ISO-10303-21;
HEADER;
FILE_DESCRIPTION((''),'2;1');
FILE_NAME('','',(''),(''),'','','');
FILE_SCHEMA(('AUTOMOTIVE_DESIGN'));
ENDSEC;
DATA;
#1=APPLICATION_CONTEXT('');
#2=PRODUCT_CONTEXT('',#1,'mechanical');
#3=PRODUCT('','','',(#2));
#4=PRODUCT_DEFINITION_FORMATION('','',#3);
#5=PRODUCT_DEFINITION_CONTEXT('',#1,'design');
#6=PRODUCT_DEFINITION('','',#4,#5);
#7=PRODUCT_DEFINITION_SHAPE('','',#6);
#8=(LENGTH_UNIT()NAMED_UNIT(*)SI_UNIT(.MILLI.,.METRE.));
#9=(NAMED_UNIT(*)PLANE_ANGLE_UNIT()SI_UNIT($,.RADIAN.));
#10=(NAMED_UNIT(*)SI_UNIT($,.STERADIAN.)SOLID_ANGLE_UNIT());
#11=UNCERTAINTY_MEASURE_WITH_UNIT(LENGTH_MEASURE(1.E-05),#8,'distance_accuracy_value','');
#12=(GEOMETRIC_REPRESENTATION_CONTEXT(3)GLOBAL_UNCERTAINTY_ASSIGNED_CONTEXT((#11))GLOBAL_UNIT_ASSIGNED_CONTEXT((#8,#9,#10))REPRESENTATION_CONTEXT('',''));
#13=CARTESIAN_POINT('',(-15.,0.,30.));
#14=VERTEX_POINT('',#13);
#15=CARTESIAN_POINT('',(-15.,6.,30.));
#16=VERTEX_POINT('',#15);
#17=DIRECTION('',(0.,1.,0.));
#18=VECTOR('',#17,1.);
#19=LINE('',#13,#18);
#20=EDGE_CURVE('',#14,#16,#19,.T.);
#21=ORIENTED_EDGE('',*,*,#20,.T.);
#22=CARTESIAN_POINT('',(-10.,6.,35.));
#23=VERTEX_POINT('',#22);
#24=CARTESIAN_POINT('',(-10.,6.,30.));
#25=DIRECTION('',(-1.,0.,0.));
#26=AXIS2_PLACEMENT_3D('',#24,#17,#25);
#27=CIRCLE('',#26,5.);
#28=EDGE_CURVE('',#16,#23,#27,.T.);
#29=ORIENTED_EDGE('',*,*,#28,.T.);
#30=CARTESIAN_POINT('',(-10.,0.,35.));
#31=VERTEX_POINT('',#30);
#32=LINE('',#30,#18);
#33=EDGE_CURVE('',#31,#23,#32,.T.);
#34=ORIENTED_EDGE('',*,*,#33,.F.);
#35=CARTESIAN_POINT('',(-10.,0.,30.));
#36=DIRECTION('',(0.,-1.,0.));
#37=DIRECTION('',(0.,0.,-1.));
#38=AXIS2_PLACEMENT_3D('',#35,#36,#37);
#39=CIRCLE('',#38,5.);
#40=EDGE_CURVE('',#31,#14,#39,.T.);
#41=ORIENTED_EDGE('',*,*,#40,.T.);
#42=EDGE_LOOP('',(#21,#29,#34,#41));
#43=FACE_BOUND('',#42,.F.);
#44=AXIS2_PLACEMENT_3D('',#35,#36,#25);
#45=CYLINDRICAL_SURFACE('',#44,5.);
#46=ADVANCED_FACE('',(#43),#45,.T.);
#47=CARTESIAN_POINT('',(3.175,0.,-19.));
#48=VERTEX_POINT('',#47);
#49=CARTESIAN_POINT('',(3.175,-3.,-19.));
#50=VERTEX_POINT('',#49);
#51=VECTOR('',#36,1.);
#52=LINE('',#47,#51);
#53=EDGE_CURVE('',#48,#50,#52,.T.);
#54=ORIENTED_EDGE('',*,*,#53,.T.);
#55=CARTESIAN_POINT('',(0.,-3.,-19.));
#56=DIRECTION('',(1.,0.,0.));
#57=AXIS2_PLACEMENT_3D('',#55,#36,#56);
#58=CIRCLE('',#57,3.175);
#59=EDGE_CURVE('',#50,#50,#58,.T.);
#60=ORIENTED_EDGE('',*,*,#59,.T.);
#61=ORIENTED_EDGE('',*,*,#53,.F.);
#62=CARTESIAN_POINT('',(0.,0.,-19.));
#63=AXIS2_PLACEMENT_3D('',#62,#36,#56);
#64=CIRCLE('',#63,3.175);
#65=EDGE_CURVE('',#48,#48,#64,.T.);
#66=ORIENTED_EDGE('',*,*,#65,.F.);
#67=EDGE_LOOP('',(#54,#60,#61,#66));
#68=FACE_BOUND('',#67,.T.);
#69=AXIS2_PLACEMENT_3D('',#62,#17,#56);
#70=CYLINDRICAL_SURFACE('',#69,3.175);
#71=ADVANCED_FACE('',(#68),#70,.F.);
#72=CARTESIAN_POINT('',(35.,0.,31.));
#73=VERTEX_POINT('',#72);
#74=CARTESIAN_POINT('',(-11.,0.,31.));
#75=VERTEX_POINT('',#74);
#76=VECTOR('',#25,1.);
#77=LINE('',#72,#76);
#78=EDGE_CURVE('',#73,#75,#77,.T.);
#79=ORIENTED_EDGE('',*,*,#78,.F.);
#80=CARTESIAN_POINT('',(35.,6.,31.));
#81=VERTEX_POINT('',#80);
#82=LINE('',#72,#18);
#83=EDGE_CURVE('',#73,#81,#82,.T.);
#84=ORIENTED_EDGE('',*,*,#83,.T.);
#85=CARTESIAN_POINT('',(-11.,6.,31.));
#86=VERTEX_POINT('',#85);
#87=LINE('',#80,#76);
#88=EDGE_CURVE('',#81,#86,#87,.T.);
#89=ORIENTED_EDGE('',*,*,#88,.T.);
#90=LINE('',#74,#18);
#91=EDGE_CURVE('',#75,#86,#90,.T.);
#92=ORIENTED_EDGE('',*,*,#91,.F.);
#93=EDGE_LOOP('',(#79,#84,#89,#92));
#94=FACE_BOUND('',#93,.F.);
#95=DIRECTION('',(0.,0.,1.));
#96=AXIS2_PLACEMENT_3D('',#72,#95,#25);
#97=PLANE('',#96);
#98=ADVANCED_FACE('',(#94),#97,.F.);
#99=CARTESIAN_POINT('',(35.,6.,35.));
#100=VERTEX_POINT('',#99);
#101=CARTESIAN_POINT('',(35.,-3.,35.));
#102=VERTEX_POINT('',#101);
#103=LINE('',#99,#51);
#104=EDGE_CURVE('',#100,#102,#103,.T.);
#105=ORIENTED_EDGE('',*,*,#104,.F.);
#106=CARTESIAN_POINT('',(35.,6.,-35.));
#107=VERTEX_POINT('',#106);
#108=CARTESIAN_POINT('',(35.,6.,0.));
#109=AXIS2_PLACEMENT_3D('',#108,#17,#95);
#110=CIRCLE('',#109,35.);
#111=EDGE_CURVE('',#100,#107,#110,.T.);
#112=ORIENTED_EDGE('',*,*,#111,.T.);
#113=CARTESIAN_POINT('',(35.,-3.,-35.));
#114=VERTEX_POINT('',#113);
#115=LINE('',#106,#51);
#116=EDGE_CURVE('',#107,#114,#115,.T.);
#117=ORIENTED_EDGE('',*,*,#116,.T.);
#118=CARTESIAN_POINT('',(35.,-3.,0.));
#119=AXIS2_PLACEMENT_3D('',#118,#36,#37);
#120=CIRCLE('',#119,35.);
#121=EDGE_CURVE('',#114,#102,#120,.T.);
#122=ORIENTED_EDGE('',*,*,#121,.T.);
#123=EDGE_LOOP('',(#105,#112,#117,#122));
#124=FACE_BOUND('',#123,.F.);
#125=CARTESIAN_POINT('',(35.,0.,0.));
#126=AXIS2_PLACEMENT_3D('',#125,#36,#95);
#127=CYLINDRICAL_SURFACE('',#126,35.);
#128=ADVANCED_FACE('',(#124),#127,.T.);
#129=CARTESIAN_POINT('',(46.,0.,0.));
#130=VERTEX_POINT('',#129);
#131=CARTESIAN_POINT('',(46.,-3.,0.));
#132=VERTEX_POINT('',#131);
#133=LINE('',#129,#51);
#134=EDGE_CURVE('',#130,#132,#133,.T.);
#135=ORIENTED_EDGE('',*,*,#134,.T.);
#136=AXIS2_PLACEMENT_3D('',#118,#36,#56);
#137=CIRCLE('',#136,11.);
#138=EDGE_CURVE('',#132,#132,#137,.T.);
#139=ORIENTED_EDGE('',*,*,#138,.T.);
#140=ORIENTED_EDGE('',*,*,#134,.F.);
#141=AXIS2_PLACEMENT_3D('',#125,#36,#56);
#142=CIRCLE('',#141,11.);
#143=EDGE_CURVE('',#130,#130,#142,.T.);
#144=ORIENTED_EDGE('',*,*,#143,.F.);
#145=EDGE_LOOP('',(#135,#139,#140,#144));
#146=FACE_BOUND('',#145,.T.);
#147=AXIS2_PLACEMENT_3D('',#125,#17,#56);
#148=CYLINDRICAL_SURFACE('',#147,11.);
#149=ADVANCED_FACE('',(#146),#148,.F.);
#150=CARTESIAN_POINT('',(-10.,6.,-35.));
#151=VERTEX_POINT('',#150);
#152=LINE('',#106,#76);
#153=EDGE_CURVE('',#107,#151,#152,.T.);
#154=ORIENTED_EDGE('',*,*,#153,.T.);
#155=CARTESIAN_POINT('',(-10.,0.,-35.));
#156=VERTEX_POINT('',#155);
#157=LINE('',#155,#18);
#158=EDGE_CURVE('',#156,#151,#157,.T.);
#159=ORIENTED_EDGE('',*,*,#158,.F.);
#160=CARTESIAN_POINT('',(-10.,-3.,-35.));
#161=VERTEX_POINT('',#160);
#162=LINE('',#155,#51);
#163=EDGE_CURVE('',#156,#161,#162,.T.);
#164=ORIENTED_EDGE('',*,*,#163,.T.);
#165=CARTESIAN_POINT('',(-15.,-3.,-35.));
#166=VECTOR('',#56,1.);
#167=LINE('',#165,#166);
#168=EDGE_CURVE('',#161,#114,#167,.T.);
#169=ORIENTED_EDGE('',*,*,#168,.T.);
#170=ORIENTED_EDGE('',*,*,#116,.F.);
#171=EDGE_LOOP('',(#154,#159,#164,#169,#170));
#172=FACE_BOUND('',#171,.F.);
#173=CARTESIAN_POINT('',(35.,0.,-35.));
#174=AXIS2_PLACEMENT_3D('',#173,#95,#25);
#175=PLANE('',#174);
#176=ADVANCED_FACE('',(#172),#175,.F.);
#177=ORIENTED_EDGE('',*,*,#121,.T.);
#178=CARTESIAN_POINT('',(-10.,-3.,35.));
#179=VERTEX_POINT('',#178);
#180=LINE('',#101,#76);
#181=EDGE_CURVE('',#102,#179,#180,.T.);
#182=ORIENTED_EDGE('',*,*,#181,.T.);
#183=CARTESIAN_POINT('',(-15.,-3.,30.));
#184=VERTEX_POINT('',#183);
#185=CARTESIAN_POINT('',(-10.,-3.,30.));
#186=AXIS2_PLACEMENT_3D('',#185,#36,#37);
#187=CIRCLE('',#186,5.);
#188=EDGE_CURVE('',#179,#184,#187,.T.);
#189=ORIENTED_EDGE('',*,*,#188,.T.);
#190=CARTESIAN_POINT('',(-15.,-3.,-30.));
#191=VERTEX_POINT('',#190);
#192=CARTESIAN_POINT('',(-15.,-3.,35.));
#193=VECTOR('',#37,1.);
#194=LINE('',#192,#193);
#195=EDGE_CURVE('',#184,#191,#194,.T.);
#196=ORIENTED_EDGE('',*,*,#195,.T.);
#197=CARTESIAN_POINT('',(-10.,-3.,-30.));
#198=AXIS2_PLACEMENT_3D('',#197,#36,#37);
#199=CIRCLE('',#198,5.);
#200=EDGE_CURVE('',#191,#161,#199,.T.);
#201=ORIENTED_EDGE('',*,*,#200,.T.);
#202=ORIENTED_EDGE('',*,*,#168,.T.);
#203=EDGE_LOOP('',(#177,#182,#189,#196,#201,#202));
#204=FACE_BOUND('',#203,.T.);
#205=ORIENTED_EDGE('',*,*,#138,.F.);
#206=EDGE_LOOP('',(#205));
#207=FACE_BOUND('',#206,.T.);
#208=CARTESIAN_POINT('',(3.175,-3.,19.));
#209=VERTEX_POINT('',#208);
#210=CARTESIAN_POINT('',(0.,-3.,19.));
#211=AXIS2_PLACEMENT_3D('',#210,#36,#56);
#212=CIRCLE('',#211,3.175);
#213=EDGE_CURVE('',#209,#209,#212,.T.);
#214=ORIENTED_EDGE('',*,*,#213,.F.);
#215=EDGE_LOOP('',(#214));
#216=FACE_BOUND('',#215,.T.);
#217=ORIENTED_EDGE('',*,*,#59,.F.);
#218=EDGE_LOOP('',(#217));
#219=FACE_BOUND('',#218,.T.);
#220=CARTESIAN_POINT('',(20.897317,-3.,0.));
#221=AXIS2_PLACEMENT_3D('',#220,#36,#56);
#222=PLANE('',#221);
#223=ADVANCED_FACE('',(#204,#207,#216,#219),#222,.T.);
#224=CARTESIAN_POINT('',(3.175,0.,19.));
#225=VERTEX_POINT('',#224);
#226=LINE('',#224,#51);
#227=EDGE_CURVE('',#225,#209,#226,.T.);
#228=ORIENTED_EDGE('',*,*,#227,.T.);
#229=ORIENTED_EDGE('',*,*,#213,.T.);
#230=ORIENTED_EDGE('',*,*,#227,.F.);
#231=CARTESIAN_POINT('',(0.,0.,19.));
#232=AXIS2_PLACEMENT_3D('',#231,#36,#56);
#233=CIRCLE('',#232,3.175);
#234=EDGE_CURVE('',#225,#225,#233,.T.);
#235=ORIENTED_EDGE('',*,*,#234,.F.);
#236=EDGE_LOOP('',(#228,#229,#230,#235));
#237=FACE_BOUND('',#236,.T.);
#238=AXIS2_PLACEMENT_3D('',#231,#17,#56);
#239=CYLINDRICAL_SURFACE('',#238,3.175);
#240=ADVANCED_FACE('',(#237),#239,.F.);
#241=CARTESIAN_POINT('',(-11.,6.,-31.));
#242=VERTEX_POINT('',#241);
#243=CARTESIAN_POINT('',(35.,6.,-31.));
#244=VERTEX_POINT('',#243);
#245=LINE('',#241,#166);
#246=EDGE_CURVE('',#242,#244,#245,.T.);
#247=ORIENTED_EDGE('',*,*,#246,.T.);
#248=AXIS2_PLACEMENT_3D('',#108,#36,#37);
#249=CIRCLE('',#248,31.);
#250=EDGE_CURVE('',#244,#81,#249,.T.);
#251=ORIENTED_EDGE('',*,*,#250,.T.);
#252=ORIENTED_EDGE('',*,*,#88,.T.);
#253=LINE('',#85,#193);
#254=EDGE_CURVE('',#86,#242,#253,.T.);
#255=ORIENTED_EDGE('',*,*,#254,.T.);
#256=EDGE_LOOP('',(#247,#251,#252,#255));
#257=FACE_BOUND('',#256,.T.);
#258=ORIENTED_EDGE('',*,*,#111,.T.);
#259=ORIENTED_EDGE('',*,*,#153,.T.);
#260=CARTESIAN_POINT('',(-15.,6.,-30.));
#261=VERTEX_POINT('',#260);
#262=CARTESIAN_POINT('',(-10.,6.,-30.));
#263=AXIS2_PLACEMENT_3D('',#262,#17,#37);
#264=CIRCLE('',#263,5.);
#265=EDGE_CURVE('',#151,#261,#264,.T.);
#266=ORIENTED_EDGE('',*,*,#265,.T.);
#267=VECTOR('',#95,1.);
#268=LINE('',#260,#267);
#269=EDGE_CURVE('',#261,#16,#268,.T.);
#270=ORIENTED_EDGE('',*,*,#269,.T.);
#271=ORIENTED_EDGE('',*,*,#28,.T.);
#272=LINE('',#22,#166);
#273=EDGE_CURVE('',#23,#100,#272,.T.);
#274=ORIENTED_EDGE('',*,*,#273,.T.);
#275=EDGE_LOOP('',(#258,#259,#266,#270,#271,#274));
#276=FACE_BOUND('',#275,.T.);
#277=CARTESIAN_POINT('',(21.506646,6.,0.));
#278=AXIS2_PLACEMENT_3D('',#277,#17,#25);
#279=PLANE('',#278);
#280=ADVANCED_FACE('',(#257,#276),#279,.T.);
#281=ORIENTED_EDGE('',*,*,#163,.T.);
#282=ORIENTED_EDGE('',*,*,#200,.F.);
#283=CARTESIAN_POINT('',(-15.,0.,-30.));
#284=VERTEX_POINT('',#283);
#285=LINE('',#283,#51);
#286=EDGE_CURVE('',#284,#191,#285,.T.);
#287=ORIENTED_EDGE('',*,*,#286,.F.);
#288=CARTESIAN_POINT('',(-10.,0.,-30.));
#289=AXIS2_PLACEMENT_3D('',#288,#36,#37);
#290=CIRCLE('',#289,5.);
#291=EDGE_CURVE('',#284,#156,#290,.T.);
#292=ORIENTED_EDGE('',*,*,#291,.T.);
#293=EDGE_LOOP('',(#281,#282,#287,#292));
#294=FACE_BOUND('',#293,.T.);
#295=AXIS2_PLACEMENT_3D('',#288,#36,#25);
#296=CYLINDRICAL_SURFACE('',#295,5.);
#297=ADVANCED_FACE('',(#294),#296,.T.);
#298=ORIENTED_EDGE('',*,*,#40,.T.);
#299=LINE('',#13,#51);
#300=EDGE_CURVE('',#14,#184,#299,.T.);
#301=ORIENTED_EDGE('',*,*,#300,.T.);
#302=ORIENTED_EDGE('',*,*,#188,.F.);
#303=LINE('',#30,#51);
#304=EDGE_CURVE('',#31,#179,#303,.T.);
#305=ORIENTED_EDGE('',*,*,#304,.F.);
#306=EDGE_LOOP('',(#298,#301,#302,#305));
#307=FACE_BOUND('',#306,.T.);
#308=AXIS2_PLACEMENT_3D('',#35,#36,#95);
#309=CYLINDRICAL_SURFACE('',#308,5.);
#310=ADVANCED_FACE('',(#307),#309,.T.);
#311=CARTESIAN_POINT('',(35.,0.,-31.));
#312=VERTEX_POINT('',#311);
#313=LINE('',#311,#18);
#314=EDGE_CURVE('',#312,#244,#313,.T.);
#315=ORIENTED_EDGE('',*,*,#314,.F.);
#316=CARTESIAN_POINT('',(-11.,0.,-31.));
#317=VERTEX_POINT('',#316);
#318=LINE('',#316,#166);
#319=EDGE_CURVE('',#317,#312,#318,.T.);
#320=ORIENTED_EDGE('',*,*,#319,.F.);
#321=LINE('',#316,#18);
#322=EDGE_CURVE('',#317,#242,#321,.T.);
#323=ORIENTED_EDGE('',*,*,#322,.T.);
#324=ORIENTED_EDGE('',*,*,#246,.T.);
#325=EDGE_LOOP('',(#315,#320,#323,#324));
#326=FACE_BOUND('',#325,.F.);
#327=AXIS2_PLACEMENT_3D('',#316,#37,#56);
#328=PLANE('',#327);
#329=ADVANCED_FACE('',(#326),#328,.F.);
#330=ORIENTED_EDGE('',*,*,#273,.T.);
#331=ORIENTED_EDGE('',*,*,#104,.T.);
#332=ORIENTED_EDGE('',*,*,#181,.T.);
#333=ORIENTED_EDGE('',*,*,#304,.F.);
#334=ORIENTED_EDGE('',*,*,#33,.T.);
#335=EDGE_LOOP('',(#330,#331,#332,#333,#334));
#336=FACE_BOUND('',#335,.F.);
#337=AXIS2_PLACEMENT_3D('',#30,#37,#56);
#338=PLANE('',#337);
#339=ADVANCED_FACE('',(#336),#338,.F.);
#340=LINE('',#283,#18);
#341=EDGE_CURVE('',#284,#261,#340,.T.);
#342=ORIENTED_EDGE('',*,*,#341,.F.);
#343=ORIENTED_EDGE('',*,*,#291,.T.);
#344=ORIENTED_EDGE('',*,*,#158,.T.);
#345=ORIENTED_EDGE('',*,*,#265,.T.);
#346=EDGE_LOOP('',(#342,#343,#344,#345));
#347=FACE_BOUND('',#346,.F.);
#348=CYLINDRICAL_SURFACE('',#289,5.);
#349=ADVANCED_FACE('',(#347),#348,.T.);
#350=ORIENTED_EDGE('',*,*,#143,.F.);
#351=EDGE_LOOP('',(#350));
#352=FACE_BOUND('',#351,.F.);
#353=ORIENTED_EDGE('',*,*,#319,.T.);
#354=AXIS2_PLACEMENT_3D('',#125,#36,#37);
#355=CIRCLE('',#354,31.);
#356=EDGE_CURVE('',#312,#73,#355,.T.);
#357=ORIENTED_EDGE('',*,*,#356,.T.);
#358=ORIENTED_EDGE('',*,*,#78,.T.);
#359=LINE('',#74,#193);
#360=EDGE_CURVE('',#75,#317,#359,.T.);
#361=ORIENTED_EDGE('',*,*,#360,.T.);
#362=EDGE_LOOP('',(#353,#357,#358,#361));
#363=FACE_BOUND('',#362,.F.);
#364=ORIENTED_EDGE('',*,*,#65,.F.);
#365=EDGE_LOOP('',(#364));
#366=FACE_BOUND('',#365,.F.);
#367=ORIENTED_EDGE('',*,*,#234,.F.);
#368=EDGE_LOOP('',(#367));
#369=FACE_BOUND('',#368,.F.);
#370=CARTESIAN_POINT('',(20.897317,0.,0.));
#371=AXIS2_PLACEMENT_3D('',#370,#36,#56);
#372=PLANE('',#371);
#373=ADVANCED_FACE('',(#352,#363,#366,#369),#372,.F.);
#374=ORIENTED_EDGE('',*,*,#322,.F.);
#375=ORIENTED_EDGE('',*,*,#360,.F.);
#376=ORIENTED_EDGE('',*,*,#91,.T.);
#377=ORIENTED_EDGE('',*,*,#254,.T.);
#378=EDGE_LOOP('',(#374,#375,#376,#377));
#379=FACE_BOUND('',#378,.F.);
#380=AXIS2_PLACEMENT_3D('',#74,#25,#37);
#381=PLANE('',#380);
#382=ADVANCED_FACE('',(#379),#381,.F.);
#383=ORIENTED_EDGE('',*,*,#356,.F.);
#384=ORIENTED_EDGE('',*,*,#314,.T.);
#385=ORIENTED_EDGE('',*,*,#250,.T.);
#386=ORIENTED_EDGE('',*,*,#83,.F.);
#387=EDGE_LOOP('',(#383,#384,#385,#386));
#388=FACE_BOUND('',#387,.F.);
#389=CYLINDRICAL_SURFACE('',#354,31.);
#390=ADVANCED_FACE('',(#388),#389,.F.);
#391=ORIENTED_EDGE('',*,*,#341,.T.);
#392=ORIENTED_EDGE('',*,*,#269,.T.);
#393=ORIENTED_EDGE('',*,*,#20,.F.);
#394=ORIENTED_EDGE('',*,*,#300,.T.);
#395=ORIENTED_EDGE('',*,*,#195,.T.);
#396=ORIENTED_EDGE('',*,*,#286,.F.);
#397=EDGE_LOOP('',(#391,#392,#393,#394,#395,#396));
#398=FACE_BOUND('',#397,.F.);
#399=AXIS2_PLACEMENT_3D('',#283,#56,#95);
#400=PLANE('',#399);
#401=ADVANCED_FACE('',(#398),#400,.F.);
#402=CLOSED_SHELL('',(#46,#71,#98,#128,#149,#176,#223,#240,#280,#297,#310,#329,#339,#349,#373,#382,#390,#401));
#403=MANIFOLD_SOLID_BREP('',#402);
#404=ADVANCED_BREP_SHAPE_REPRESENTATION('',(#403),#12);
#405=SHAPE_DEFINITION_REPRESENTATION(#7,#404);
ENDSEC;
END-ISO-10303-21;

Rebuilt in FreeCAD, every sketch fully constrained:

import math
import FreeCAD as App
import Part
import Sketcher

V = App.Vector


def edges_at(feature, points):
    """Names of the edges that pass closest to the given points."""
    edges = feature.Shape.Edges
    near = lambda p: min(range(len(edges)), key=lambda i: edges[i].distToShape(Part.Vertex(*p))[0])
    return sorted({f"Edge{near(p) + 1}" for p in points})

doc = App.newDocument("Part")
params = doc.addObject("Spreadsheet::Sheet", "Params")
for row, (alias, value) in enumerate([
    ("sketch1_diameter", "22 mm"),
    ("sketch1_radius", "35 mm"),
    ("sketch1_diameter2", "6.35 mm"),
    ("sketch1_width", "50 mm"),
    ("pad1_length", "3 mm"),
    ("fillet_radius", "5 mm"),
    ("sketch2_radius", "5 mm"),
    ("sketch2_radius2", "35 mm"),
    ("sketch2_radius3", "31 mm"),
    ("sketch2_width", "45 mm"),
    ("sketch2_width2", "46 mm"),
    ("pad2_length", "6 mm"),
], start=1):
    params.set(f"A{row}", alias)
    params.set(f"B{row}", "=" + value)
    params.setAlias(f"B{row}", alias)

body = doc.addObject("PartDesign::Body", "Body")

sketch1 = body.newObject("Sketcher::SketchObject", "Sketch")
sketch1.AttachmentSupport = (doc.getObject("XZ_Plane"), [""])
sketch1.MapMode = "FlatFace"
sketch1.addGeometry(Part.LineSegment(V(35, 35, 0), V(-15, 35, 0)), False)
sketch1.addGeometry(Part.LineSegment(V(-15, 35, 0), V(-15, -35, 0)), False)
sketch1.addGeometry(Part.LineSegment(V(-15, -35, 0), V(35, -35, 0)), False)
sketch1.addGeometry(Part.ArcOfCircle(Part.Circle(V(35, 0, 0), V(0, 0, 1), 35), math.radians(-90), math.radians(90)), False)
sketch1.addGeometry(Part.Circle(V(0, -19, 0), V(0, 0, 1), 3.175), False)
sketch1.addGeometry(Part.Circle(V(0, 19, 0), V(0, 0, 1), 3.175), False)
sketch1.addGeometry(Part.Circle(V(35, 0, 0), V(0, 0, 1), 11), False)
sketch1.addConstraint(Sketcher.Constraint("Coincident", 0, 2, 1, 1))
sketch1.addConstraint(Sketcher.Constraint("Coincident", 1, 2, 2, 1))
sketch1.addConstraint(Sketcher.Constraint("Tangent", 2, 2, 3, 1))
sketch1.addConstraint(Sketcher.Constraint("Tangent", 3, 2, 0, 1))
sketch1.addConstraint(Sketcher.Constraint("Horizontal", 0))
sketch1.addConstraint(Sketcher.Constraint("Vertical", 1))
sketch1.addConstraint(Sketcher.Constraint("Horizontal", 2))
sketch1.addConstraint(Sketcher.Constraint("Coincident", 6, 3, 3, 3))
sketch1.addConstraint(Sketcher.Constraint("Equal", 4, 5))
sketch1.addConstraint(Sketcher.Constraint("Symmetric", 4, 3, 5, 3, -1, 1))
sketch1.addConstraint(Sketcher.Constraint("PointOnObject", 3, 3, -1))
sketch1.addConstraint(Sketcher.Constraint("PointOnObject", 4, 3, -2))
sketch1.addConstraint(Sketcher.Constraint("Diameter", 6, 22.0))
sketch1.addConstraint(Sketcher.Constraint("Radius", 3, 35.0))
sketch1.addConstraint(Sketcher.Constraint("Diameter", 4, 6.35))
sketch1.addConstraint(Sketcher.Constraint("DistanceX", 0, 2, 0, 1, 50.0))
sketch1.addConstraint(Sketcher.Constraint("DistanceX", -1, 1, 3, 3, 35.0))
sketch1.addConstraint(Sketcher.Constraint("DistanceY", 4, 3, -1, 1, 19.0))
sketch1.setExpression("Constraints[12]", "Params.sketch1_diameter")
sketch1.setExpression("Constraints[13]", "Params.sketch1_radius")
sketch1.setExpression("Constraints[14]", "Params.sketch1_diameter2")
sketch1.setExpression("Constraints[15]", "Params.sketch1_width")
pad1 = body.newObject("PartDesign::Pad", "Pad")
pad1.Profile = sketch1
pad1.setExpression("Length", "Params.pad1_length")
body2 = doc.addObject("PartDesign::Body", "Body001")
doc.recompute()

body2.BaseFeature = body
doc.recompute()

mirroring = doc.addObject("Part::Mirroring", "Mirroring")
mirroring.Source = body
mirroring.Base = V(0, 0, 0)
mirroring.Normal = V(0, 0, 1)
body3 = doc.addObject("PartDesign::Body", "Body002")
body3.BaseFeature = mirroring
boolean = body2.newObject("PartDesign::Boolean", "Boolean")
boolean.Type = "Fuse"
boolean.addObjects([body3])
doc.recompute()

fillet = body2.newObject("PartDesign::Fillet", "Fillet")
fillet.Base = (boolean, edges_at(boolean, [(-15, -1.5, -35), (-15, -1.5, 35)]))
fillet.setExpression("Radius", "Params.fillet_radius")

sketch2 = body2.newObject("Sketcher::SketchObject", "Sketch001")
sketch2.AttachmentSupport = (doc.getObject("XZ_Plane001"), [""])
sketch2.MapMode = "FlatFace"
sketch2.addGeometry(Part.LineSegment(V(35, -35, 0), V(-10, -35, 0)), False)
sketch2.addGeometry(Part.ArcOfCircle(Part.Circle(V(-10, -30, 0), V(0, 0, 1), 5), math.radians(180), math.radians(270)), False)
sketch2.addGeometry(Part.LineSegment(V(-15, -30, 0), V(-15, 30, 0)), False)
sketch2.addGeometry(Part.ArcOfCircle(Part.Circle(V(-10, 30, 0), V(0, 0, 1), 5), math.radians(90), math.radians(180)), False)
sketch2.addGeometry(Part.LineSegment(V(-10, 35, 0), V(35, 35, 0)), False)
sketch2.addGeometry(Part.ArcOfCircle(Part.Circle(V(35, 0, 0), V(0, 0, 1), 35), math.radians(-90), math.radians(90)), False)
sketch2.addGeometry(Part.ArcOfCircle(Part.Circle(V(35, 0, 0), V(0, 0, 1), 31), math.radians(-90), math.radians(90)), False)
sketch2.addGeometry(Part.LineSegment(V(35, 31, 0), V(-11, 31, 0)), False)
sketch2.addGeometry(Part.LineSegment(V(-11, 31, 0), V(-11, -31, 0)), False)
sketch2.addGeometry(Part.LineSegment(V(-11, -31, 0), V(35, -31, 0)), False)
sketch2.addConstraint(Sketcher.Constraint("Tangent", 0, 2, 1, 2))
sketch2.addConstraint(Sketcher.Constraint("Tangent", 1, 1, 2, 1))
sketch2.addConstraint(Sketcher.Constraint("Tangent", 2, 2, 3, 2))
sketch2.addConstraint(Sketcher.Constraint("Tangent", 3, 1, 4, 1))
sketch2.addConstraint(Sketcher.Constraint("Tangent", 4, 2, 5, 2))
sketch2.addConstraint(Sketcher.Constraint("Tangent", 5, 1, 0, 1))
sketch2.addConstraint(Sketcher.Constraint("Tangent", 6, 2, 7, 1))
sketch2.addConstraint(Sketcher.Constraint("Coincident", 7, 2, 8, 1))
sketch2.addConstraint(Sketcher.Constraint("Coincident", 8, 2, 9, 1))
sketch2.addConstraint(Sketcher.Constraint("Tangent", 9, 2, 6, 1))
sketch2.addConstraint(Sketcher.Constraint("Horizontal", 0))
sketch2.addConstraint(Sketcher.Constraint("Vertical", 2))
sketch2.addConstraint(Sketcher.Constraint("Horizontal", 4))
sketch2.addConstraint(Sketcher.Constraint("Horizontal", 7))
sketch2.addConstraint(Sketcher.Constraint("Vertical", 8))
sketch2.addConstraint(Sketcher.Constraint("Horizontal", 9))
sketch2.addConstraint(Sketcher.Constraint("Coincident", 6, 3, 5, 3))
sketch2.addConstraint(Sketcher.Constraint("Equal", 1, 3))
sketch2.addConstraint(Sketcher.Constraint("PointOnObject", 5, 3, -1))
sketch2.addConstraint(Sketcher.Constraint("Radius", 1, 5.0))
sketch2.addConstraint(Sketcher.Constraint("Radius", 5, 35.0))
sketch2.addConstraint(Sketcher.Constraint("Radius", 6, 31.0))
sketch2.addConstraint(Sketcher.Constraint("DistanceX", 0, 2, 0, 1, 45.0))
sketch2.addConstraint(Sketcher.Constraint("DistanceX", 7, 2, 7, 1, 46.0))
sketch2.addConstraint(Sketcher.Constraint("DistanceX", 1, 3, -1, 1, 10.0))
sketch2.setExpression("Constraints[19]", "Params.sketch2_radius")
sketch2.setExpression("Constraints[20]", "Params.sketch2_radius2")
sketch2.setExpression("Constraints[21]", "Params.sketch2_radius3")
sketch2.setExpression("Constraints[22]", "Params.sketch2_width")
sketch2.setExpression("Constraints[23]", "Params.sketch2_width2")
pad2 = body2.newObject("PartDesign::Pad", "Pad001")
pad2.Profile = sketch2
pad2.setExpression("Length", "Params.pad2_length")
pad2.Reversed = True
mirroring.Visibility = False

doc.recompute()
